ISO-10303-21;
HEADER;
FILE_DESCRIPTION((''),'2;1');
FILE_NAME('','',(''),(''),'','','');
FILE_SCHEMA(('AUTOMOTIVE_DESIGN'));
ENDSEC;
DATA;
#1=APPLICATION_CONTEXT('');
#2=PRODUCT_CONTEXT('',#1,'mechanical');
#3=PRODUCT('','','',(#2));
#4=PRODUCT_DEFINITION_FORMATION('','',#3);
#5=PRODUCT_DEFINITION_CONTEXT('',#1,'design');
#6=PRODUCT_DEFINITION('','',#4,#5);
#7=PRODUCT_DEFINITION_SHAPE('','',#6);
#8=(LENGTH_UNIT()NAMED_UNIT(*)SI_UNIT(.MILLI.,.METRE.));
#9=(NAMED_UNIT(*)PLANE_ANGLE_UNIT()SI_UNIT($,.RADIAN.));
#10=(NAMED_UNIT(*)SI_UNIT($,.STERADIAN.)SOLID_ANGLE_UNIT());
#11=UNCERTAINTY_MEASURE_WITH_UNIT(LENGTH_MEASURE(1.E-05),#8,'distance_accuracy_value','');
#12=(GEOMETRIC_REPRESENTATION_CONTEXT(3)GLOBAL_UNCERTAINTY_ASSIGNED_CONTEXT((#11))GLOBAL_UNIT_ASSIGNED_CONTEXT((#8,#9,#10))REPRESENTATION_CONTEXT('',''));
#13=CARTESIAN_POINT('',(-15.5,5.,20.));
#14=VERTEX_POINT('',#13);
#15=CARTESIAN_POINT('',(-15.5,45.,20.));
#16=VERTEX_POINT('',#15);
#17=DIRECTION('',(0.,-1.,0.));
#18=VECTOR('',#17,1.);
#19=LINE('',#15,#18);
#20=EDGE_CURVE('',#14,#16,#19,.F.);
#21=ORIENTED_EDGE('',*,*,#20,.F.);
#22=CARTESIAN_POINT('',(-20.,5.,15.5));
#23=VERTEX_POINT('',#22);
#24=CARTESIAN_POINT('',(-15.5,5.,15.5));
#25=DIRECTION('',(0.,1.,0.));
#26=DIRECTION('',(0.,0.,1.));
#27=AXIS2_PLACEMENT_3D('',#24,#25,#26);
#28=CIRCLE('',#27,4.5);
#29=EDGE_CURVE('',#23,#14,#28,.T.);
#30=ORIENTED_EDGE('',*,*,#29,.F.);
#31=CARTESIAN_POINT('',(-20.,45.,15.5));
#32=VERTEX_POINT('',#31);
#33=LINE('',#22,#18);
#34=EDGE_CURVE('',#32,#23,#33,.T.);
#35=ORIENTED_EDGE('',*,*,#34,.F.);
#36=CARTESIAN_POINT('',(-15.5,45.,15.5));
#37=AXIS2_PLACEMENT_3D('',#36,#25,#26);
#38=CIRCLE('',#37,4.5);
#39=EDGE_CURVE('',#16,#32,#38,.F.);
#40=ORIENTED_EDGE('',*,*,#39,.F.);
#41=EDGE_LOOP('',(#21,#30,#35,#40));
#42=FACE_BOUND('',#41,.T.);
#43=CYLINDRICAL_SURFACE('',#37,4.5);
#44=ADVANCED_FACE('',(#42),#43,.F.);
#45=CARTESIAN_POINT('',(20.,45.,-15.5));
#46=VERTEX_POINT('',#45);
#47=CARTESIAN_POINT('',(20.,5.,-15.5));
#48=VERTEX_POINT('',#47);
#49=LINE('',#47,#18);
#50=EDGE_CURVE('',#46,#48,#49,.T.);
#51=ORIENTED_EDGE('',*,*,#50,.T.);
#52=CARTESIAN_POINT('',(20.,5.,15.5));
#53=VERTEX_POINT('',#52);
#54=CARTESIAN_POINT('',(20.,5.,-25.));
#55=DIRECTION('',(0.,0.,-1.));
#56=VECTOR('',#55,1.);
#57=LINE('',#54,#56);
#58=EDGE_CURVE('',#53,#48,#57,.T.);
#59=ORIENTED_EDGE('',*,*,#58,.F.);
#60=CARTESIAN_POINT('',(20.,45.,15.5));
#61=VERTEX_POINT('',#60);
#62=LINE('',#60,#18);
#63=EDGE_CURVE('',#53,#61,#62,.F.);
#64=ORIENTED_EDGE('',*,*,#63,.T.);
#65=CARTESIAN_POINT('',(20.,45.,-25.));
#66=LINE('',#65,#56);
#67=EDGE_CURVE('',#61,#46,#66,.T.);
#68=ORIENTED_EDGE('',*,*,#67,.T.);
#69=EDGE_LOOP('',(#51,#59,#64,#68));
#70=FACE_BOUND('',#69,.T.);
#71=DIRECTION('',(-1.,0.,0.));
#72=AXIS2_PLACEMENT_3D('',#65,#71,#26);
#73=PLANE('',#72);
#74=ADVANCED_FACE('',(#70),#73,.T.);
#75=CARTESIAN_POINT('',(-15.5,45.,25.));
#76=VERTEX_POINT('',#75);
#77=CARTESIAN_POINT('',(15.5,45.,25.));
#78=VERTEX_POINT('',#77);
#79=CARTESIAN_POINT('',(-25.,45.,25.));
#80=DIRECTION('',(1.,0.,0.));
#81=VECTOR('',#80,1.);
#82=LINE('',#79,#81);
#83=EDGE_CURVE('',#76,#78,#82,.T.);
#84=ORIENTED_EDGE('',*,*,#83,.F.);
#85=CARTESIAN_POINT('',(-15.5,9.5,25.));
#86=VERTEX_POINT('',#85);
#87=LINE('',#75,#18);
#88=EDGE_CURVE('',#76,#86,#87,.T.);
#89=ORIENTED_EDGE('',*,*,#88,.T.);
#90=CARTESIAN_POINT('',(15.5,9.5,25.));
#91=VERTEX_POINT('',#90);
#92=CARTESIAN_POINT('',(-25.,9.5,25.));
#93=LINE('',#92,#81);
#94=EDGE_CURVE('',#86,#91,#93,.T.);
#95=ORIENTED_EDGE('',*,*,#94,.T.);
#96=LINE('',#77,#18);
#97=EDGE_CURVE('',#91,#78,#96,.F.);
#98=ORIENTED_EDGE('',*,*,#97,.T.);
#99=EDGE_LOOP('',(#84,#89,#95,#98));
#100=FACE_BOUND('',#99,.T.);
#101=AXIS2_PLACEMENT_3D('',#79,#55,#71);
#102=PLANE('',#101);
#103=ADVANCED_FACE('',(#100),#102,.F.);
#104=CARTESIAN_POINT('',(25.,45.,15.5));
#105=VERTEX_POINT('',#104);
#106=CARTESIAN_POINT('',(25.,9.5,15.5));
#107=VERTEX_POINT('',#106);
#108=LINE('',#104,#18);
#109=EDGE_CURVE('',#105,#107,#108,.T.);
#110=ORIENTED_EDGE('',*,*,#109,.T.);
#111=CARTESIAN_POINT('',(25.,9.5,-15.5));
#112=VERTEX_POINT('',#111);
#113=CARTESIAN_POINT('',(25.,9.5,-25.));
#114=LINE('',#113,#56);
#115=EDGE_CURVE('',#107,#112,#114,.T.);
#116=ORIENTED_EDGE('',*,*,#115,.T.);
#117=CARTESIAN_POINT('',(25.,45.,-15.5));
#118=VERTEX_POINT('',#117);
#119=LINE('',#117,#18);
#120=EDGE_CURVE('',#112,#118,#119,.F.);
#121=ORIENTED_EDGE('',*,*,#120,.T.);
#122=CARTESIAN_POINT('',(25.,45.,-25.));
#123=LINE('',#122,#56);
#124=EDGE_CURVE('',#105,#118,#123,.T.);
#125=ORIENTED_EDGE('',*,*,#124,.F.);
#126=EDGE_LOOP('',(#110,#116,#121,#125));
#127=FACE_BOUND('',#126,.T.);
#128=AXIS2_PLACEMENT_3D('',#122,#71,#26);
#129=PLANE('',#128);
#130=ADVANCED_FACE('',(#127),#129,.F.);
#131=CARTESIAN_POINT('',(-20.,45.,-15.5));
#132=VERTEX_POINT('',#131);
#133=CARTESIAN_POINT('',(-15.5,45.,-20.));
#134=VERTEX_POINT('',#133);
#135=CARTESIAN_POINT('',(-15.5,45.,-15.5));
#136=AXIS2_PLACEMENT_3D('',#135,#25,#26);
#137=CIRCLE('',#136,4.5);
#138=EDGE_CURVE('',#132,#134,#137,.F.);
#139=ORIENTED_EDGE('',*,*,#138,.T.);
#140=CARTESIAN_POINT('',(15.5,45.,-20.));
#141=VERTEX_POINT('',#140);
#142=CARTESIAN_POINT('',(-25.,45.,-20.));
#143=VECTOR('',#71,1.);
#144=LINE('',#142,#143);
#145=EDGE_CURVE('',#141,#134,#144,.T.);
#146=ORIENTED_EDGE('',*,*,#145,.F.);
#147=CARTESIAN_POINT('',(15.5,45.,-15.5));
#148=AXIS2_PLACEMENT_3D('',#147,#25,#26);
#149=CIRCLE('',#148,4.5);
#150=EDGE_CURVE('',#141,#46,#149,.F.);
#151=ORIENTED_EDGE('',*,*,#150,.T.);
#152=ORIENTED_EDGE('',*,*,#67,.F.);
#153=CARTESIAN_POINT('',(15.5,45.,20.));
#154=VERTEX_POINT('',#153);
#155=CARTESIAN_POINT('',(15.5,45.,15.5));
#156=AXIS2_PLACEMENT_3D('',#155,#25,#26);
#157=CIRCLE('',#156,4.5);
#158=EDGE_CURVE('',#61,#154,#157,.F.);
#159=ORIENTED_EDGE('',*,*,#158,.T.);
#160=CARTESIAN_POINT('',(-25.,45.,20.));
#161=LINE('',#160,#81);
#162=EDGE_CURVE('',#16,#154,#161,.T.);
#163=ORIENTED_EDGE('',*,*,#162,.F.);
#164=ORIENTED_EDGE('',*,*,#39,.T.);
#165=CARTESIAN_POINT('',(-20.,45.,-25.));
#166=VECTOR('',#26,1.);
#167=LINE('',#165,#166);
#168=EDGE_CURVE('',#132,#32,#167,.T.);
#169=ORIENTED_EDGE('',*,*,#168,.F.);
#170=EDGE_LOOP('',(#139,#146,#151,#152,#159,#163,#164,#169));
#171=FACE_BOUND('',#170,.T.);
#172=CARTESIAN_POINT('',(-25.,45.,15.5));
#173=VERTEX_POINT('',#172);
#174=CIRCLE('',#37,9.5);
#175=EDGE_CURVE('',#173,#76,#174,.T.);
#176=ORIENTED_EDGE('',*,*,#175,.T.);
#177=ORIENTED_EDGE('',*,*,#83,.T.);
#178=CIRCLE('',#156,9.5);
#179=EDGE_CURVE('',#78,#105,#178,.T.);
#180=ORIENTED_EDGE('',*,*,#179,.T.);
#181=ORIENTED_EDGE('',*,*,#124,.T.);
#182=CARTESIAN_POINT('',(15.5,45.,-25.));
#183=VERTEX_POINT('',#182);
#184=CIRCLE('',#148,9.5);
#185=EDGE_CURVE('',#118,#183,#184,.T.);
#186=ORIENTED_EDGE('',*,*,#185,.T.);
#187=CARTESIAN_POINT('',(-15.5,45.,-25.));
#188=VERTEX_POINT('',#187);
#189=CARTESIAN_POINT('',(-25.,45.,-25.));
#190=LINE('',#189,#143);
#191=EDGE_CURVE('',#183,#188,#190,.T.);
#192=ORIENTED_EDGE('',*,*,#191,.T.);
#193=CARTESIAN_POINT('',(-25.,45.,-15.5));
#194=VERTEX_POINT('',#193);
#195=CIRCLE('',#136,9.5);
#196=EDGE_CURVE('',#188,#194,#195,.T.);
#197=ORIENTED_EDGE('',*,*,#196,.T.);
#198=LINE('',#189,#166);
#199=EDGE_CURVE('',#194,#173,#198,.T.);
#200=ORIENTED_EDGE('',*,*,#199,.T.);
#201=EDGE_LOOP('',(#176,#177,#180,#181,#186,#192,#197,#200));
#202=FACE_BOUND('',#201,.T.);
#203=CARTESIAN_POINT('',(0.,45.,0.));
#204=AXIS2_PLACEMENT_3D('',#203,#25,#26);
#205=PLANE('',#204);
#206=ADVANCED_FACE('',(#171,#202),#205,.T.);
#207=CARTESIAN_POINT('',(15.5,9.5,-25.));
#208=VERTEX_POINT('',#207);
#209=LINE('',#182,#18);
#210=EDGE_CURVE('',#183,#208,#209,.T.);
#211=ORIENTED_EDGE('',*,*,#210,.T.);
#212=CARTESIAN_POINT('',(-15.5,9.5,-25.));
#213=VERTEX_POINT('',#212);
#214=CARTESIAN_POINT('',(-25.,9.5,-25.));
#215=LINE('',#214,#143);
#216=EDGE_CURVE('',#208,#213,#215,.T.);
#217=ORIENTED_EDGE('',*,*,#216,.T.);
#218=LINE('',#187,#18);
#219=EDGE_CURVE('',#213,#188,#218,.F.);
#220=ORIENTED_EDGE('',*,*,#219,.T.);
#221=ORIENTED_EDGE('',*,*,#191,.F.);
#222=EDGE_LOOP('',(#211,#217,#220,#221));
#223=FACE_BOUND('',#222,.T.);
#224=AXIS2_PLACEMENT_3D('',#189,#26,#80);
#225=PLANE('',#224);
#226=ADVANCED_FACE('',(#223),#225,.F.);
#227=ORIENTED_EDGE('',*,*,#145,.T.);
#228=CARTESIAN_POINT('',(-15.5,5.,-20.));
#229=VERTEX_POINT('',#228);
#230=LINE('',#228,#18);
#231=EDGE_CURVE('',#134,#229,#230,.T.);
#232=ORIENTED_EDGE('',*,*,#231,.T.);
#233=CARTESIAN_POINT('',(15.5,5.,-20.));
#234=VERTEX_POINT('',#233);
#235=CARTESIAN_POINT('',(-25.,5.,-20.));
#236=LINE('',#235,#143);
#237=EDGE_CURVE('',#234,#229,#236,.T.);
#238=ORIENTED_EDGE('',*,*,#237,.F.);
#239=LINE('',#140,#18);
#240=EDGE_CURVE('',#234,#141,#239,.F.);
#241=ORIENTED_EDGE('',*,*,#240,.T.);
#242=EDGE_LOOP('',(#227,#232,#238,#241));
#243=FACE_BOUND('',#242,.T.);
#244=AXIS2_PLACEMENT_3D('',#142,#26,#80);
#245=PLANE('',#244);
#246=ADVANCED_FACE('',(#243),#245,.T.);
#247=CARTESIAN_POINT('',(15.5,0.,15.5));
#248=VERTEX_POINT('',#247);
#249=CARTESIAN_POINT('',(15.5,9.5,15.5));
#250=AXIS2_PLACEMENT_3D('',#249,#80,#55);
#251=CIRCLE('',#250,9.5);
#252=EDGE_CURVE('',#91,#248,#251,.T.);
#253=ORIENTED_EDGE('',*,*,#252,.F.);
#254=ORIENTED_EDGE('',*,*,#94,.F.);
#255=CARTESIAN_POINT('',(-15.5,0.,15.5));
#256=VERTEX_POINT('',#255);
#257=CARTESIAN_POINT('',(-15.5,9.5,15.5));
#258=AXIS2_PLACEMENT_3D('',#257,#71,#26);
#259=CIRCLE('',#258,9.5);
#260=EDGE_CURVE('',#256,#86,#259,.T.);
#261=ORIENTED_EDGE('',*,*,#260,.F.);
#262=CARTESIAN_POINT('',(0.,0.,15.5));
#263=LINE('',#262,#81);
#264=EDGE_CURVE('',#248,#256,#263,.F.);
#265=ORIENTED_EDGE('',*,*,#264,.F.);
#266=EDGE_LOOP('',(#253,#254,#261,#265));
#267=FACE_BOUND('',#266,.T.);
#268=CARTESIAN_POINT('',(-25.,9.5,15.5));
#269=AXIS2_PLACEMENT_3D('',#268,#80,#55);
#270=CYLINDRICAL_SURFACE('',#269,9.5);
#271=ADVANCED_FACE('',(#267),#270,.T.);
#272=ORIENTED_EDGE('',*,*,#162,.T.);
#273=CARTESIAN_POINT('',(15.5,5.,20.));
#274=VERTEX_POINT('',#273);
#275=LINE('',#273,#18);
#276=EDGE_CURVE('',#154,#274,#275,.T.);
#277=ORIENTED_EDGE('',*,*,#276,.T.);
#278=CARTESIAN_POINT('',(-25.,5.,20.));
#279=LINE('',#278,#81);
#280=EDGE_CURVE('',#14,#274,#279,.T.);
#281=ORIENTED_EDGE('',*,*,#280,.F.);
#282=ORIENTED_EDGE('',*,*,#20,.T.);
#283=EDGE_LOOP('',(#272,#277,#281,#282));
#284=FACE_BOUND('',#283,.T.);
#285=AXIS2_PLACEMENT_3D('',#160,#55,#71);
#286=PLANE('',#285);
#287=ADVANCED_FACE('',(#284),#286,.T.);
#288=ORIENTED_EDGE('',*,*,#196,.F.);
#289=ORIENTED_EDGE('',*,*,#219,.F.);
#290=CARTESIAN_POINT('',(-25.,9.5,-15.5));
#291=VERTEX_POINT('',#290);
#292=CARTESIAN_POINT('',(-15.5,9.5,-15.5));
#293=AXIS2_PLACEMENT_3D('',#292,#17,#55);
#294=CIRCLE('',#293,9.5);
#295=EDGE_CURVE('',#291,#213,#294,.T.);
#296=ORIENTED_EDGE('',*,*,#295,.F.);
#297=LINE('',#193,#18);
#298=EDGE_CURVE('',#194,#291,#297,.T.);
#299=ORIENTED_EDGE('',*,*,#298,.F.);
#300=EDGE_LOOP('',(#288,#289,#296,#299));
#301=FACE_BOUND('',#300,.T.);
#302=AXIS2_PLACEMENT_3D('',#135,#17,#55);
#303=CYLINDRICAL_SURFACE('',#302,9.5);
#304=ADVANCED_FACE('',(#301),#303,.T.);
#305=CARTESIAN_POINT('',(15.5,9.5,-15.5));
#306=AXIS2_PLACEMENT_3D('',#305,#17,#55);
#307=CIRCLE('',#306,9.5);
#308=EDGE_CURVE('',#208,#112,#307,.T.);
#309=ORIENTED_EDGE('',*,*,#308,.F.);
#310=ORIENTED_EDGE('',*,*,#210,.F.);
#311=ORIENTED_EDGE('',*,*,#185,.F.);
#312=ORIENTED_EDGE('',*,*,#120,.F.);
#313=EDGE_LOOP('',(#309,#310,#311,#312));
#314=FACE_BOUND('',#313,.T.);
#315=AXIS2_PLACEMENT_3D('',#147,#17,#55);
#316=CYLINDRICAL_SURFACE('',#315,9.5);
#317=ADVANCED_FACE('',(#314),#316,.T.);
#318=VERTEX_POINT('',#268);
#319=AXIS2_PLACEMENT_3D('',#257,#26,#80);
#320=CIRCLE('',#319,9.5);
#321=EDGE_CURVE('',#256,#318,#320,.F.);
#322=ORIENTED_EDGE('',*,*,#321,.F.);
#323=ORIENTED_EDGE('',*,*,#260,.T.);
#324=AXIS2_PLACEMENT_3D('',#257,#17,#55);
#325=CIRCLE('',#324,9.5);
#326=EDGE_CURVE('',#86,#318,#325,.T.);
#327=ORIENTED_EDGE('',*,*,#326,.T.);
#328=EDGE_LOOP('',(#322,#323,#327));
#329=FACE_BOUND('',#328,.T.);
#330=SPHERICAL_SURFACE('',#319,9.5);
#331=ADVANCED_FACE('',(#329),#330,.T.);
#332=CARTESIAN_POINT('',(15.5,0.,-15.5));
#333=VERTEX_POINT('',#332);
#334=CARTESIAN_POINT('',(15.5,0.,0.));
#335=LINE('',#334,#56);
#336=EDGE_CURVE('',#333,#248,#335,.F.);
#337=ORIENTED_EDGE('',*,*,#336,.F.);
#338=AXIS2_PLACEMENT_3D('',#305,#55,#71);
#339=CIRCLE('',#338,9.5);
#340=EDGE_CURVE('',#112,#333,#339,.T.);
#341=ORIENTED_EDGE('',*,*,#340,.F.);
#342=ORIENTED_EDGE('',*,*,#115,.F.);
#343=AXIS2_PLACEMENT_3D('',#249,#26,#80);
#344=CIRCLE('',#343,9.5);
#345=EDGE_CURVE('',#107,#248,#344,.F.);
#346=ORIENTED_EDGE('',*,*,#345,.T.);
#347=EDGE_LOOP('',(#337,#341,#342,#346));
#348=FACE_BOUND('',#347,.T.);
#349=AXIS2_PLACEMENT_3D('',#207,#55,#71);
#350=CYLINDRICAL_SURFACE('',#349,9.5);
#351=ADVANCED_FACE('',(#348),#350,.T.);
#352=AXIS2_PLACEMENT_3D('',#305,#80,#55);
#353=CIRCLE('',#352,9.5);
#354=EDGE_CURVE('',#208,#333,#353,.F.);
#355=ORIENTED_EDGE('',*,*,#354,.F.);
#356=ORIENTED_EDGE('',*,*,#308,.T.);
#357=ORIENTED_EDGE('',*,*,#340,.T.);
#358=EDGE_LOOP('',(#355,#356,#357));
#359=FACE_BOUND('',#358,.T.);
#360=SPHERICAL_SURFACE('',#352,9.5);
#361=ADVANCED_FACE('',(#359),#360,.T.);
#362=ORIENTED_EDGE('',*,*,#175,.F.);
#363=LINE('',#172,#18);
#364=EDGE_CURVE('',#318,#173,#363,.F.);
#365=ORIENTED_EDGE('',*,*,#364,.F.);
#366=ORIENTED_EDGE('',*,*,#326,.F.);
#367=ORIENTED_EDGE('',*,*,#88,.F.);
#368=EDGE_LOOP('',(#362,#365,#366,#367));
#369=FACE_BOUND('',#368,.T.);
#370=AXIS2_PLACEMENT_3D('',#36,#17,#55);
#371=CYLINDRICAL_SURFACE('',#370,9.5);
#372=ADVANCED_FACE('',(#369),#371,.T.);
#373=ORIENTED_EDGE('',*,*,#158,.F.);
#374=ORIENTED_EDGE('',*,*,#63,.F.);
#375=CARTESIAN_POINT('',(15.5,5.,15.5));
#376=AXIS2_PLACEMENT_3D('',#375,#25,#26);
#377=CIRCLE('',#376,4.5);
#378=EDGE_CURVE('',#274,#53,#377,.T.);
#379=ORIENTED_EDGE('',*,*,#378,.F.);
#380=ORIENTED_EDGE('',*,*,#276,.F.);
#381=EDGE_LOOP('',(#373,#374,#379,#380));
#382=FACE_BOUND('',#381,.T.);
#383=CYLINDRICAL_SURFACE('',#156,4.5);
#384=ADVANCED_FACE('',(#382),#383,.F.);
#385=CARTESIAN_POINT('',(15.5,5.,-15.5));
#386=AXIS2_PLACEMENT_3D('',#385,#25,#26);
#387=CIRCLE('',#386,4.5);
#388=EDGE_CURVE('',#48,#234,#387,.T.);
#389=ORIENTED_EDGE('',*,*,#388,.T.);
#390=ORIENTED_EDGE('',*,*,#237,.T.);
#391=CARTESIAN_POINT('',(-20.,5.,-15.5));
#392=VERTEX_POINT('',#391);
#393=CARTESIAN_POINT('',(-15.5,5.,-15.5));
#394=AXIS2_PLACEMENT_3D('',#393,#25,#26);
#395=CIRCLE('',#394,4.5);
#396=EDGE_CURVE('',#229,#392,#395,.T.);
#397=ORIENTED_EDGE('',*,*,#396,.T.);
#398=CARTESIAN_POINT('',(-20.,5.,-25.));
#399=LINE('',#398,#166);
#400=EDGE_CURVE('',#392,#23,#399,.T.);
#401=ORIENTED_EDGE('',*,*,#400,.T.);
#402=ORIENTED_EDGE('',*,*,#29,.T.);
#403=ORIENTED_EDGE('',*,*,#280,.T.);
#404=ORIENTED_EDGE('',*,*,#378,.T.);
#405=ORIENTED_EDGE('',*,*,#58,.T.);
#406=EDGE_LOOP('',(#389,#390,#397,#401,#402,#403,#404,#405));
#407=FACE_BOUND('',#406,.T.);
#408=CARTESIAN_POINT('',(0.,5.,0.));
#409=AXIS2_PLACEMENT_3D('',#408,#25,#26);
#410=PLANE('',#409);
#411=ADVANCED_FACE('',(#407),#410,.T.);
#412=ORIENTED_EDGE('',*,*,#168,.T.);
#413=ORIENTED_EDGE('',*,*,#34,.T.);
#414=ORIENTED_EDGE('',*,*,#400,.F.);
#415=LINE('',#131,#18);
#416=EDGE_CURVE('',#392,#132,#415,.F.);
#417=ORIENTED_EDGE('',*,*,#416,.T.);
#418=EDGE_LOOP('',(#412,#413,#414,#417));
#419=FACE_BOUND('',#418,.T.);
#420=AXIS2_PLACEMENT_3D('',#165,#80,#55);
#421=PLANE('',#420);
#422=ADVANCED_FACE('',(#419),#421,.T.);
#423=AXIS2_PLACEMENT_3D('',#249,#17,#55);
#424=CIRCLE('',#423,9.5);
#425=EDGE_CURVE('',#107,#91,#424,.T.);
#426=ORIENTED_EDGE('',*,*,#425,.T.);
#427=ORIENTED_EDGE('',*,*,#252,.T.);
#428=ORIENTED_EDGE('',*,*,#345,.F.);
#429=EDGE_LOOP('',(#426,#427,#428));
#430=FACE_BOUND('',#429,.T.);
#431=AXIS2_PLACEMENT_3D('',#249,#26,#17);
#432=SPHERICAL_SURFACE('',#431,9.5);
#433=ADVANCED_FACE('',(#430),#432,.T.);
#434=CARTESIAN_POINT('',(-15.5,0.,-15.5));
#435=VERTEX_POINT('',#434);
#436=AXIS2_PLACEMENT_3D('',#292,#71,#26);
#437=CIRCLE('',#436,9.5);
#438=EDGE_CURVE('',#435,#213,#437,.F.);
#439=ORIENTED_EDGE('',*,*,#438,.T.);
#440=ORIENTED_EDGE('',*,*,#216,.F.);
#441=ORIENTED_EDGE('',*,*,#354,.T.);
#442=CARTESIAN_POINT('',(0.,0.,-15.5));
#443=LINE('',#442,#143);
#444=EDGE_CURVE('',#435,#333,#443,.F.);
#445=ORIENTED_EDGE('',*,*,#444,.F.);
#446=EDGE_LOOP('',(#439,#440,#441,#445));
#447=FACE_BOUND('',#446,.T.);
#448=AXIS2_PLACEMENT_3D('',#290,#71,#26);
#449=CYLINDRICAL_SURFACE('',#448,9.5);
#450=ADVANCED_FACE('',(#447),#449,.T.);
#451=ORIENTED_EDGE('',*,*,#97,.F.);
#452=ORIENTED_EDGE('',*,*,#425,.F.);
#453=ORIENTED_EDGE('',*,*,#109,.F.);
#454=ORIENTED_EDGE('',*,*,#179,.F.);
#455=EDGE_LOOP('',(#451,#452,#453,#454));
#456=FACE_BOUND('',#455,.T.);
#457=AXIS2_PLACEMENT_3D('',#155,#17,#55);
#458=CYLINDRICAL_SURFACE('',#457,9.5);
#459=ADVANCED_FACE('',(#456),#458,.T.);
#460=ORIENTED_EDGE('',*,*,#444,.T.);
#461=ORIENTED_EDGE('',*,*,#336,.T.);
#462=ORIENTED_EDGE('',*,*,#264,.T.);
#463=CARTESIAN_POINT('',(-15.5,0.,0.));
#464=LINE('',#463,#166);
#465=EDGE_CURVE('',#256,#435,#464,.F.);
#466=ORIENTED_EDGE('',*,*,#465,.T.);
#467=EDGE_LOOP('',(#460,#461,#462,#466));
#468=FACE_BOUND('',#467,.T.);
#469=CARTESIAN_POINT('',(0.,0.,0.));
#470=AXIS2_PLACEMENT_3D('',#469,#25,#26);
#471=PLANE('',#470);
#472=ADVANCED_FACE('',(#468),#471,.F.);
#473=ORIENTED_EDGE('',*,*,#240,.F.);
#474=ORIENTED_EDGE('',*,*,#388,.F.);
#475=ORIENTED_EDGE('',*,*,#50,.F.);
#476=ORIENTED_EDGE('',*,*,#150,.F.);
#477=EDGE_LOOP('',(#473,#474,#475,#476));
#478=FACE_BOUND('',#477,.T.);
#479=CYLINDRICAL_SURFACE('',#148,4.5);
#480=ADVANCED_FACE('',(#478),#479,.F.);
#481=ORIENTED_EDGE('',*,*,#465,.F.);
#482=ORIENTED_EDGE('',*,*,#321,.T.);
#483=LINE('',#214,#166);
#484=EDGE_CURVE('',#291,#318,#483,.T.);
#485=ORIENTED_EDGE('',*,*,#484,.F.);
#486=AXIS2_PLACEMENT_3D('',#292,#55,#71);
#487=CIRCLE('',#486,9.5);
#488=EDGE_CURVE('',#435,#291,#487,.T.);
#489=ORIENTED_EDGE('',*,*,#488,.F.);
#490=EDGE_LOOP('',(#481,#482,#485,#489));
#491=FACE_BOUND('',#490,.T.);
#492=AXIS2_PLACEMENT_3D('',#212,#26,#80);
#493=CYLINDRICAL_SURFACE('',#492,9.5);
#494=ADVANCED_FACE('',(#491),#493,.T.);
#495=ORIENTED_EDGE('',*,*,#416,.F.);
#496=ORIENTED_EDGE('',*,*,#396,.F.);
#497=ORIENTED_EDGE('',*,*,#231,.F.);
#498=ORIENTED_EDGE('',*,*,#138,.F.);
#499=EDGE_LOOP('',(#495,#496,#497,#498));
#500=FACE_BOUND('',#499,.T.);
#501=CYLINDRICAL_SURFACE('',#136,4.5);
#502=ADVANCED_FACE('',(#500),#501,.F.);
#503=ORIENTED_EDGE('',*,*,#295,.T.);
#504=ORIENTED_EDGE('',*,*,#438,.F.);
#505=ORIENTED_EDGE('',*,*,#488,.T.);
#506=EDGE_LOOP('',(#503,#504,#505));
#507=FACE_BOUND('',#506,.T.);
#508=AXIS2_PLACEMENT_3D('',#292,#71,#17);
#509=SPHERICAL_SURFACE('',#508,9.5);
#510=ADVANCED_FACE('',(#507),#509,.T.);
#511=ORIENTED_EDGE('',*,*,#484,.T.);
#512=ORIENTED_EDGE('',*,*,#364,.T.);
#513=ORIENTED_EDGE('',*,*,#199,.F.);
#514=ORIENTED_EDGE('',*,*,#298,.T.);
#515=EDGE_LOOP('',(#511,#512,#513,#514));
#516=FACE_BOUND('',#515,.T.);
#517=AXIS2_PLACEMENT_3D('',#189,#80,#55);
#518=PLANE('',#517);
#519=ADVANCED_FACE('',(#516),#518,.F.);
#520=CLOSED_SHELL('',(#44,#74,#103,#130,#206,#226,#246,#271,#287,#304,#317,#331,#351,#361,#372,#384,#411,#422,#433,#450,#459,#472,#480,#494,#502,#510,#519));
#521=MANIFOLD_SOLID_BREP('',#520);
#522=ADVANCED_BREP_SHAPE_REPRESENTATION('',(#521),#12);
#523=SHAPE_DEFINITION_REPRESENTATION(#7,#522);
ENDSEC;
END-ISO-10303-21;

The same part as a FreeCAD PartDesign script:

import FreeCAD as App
import Part
import Sketcher
from FreeCAD import Vector


def edges_at(feature, points):
    """Names of the edges that pass closest to the given points."""
    edges = feature.Shape.Edges
    near = lambda p: min(range(len(edges)), key=lambda i: edges[i].distToShape(Part.Vertex(*p))[0])
    return sorted({f"Edge{near(p) + 1}" for p in points})


def faces_at(feature, points):
    """Names of the faces that lie closest to the given points."""
    faces = feature.Shape.Faces
    near = lambda p: min(range(len(faces)), key=lambda i: faces[i].distToShape(Part.Vertex(*p))[0])
    return sorted({f"Face{near(p) + 1}" for p in points})


def add_polygon(sketch, points):
    """Adds a closed chain of lines whose ends are joined by coincident constraints."""
    first, n = sketch.GeometryCount, len(points)
    for a, b in zip(points, points[1:] + points[:1]):
        sketch.addGeometry(Part.LineSegment(App.Vector(*a, 0), App.Vector(*b, 0)), False)
    for i in range(n):
        sketch.addConstraint(Sketcher.Constraint("Coincident", first + i, 2, first + (i + 1) % n, 1))

doc = App.newDocument("Part")
body = doc.addObject("PartDesign::Body", "Body")

sketch1 = body.newObject("Sketcher::SketchObject", "Sketch")
sketch1.AttachmentSupport = (doc.getObject("XZ_Plane"), [""])
sketch1.MapMode = "FlatFace"
add_polygon(sketch1, [(-25, -25), (-25, 25), (25, 25), (25, -25)])
sketch1.addConstraint(Sketcher.Constraint("Vertical", 0))
sketch1.addConstraint(Sketcher.Constraint("Horizontal", 1))
sketch1.addConstraint(Sketcher.Constraint("Vertical", 2))
sketch1.addConstraint(Sketcher.Constraint("Horizontal", 3))
sketch1.addConstraint(Sketcher.Constraint("Symmetric", 0, 2, 2, 2, -1, 1))
sketch1.addConstraint(Sketcher.Constraint("Equal", 3, 0))
sketch1.addConstraint(Sketcher.Constraint("DistanceX", 1, 1, 1, 2, 50.0))
pad1 = body.newObject("PartDesign::Pad", "Pad")
pad1.Profile = sketch1
pad1.Length = 45
pad1.Reversed = True
doc.recompute()

thickness = body.newObject("PartDesign::Thickness", "Thickness")
thickness.Base = (pad1, faces_at(pad1, [(0, 45, 0)]))
thickness.Value = 5
thickness.Reversed = True
thickness.Join = "Intersection"
doc.recompute()

fillet = body.newObject("PartDesign::Fillet", "Fillet")
fillet.Base = (thickness, edges_at(thickness, [
    (20, 25, 20),
    (20, 25, -20),
    (-20, 25, -20),
    (-20, 25, 20),
]))
fillet.Radius = 4.5
doc.recompute()

fillet2 = body.newObject("PartDesign::Fillet", "Fillet001")
fillet2.Base = (fillet, edges_at(fillet, [
    (0, 0, 25),
    (-25, 0, 0),
    (0, 0, -25),
    (25, 0, 0),
    (25, 22.5, 25),
    (-25, 22.5, 25),
    (-25, 22.5, -25),
    (25, 22.5, -25),
]))
fillet2.Radius = 9.5

doc.recompute()
